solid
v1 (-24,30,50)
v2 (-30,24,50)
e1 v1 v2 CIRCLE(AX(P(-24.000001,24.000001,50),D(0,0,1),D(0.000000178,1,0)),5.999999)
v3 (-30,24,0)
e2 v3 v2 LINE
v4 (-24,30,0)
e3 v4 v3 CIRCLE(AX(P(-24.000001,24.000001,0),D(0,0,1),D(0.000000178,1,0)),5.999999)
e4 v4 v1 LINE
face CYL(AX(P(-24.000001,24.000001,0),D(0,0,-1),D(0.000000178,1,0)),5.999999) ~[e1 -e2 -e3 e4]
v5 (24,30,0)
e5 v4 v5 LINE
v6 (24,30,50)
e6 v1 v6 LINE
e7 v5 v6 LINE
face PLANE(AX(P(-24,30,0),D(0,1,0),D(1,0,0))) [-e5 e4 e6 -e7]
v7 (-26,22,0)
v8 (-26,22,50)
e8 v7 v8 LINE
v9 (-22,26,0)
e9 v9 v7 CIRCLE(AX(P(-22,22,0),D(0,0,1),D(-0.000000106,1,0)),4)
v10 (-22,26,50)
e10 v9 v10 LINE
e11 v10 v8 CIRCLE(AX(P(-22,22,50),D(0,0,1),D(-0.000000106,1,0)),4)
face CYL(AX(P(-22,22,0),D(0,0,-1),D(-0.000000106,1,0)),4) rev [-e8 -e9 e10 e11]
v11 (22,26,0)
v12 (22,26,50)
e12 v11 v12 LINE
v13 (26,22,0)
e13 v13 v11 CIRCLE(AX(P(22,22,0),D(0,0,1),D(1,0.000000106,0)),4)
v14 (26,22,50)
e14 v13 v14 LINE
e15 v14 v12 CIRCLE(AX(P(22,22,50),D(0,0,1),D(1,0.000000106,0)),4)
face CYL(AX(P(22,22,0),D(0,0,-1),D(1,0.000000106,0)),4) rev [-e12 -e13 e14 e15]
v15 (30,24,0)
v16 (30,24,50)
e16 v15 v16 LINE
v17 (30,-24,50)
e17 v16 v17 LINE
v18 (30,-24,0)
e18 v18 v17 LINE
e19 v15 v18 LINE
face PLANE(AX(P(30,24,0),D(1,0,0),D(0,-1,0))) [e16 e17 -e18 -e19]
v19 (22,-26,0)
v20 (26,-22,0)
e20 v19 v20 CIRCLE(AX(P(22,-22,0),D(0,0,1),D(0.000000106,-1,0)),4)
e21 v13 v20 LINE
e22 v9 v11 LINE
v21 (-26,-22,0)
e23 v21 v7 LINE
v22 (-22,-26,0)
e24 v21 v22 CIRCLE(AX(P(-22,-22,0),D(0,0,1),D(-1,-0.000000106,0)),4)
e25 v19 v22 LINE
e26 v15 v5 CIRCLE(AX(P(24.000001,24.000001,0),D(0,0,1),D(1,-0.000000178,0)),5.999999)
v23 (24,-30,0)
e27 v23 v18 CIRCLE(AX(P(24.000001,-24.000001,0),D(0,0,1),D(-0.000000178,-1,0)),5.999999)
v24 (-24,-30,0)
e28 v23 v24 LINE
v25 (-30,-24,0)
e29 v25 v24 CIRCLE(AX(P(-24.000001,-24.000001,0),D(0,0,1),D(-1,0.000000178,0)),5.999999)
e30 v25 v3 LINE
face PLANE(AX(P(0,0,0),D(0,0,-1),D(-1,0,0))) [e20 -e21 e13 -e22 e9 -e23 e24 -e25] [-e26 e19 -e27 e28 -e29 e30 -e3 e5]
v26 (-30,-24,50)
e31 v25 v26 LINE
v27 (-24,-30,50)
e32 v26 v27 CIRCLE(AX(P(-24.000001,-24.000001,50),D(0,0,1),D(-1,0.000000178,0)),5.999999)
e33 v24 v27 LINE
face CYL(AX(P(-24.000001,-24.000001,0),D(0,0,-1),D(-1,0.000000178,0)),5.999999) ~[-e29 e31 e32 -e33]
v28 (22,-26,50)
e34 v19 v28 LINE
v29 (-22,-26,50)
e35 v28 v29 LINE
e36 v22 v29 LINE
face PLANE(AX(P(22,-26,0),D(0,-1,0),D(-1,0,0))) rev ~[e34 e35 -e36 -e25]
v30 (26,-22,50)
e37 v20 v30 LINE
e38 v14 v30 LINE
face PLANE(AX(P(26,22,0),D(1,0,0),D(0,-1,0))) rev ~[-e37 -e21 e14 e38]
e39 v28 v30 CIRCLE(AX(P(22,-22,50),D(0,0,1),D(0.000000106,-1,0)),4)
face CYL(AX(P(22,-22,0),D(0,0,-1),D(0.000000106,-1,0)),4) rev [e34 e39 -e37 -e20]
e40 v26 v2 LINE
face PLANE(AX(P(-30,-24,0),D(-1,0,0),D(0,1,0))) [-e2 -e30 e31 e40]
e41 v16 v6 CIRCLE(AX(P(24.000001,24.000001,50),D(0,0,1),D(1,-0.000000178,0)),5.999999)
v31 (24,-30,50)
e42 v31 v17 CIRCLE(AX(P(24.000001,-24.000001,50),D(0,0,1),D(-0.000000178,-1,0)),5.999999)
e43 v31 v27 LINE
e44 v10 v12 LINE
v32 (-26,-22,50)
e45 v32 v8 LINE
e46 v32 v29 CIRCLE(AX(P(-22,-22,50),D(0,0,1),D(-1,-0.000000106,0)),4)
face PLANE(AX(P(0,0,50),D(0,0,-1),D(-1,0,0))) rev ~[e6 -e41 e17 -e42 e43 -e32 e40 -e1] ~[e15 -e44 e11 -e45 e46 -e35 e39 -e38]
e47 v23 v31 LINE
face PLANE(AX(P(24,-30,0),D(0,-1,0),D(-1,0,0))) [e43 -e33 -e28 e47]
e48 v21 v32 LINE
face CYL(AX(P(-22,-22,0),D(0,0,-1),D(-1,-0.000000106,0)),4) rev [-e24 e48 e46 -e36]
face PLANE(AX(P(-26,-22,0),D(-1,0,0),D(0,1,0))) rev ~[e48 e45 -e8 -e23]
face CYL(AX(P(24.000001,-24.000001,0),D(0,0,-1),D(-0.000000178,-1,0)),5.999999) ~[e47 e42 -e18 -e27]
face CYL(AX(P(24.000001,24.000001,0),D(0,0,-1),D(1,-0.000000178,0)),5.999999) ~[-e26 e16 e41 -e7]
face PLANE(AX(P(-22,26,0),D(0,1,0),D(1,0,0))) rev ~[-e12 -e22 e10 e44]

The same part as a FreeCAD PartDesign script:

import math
import FreeCAD as App
import Part
import Sketcher

V = App.Vector

doc = App.newDocument("Part")
body = doc.addObject("PartDesign::Body", "Body")

sketch1 = body.newObject("Sketcher::SketchObject", "Sketch")
sketch1.AttachmentSupport = (doc.getObject("XY_Plane"), [""])
sketch1.MapMode = "FlatFace"
sketch1.addGeometry([
    Part.LineSegment(V(24, 30, 0), V(-24, 30, 0)),
    Part.ArcOfCircle(Part.Circle(V(-24.000001, 24.000001, 0), V(0, 0, 1), 5.999999), math.radians(89.99999), math.radians(180.00001)),
    Part.LineSegment(V(-30, 24, 0), V(-30, -24, 0)),
    Part.ArcOfCircle(Part.Circle(V(-24.000001, -24.000001, 0), V(0, 0, 1), 5.999999), math.radians(179.99999), math.radians(270.00001)),
    Part.LineSegment(V(-24, -30, 0), V(24, -30, 0)),
    Part.ArcOfCircle(Part.Circle(V(24.000001, -24.000001, 0), V(0, 0, 1), 5.999999), math.radians(-90.00001), math.radians(0.00001)),
    Part.LineSegment(V(30, -24, 0), V(30, 24, 0)),
    Part.ArcOfCircle(Part.Circle(V(24.000001, 24.000001, 0), V(0, 0, 1), 5.999999), math.radians(-0.00001), math.radians(90.00001)),
    Part.LineSegment(V(-22, 26, 0), V(22, 26, 0)),
    Part.ArcOfCircle(Part.Circle(V(22, 22, 0), V(0, 0, 1), 4), math.radians(0.000006), math.radians(89.999994)),
    Part.LineSegment(V(26, 22, 0), V(26, -22, 0)),
    Part.ArcOfCircle(Part.Circle(V(22, -22, 0), V(0, 0, 1), 4), math.radians(-89.999994), math.radians(-0.000006)),
    Part.LineSegment(V(22, -26, 0), V(-22, -26, 0)),
    Part.ArcOfCircle(Part.Circle(V(-22, -22, 0), V(0, 0, 1), 4), math.radians(-179.999994), math.radians(-90.000006)),
    Part.LineSegment(V(-26, -22, 0), V(-26, 22, 0)),
    Part.ArcOfCircle(Part.Circle(V(-22, 22, 0), V(0, 0, 1), 4), math.radians(90.000006), math.radians(179.999994)),
], False)
sketch1.addConstraint([
    Sketcher.Constraint("Tangent", 0, 2, 1, 1),
    Sketcher.Constraint("Tangent", 1, 2, 2, 1),
    Sketcher.Constraint("Tangent", 2, 2, 3, 1),
    Sketcher.Constraint("Tangent", 3, 2, 4, 1),
    Sketcher.Constraint("Tangent", 4, 2, 5, 1),
    Sketcher.Constraint("Tangent", 5, 2, 6, 1),
    Sketcher.Constraint("Tangent", 6, 2, 7, 1),
    Sketcher.Constraint("Tangent", 7, 2, 0, 1),
    Sketcher.Constraint("Tangent", 8, 2, 9, 2),
    Sketcher.Constraint("Tangent", 9, 1, 10, 1),
    Sketcher.Constraint("Tangent", 10, 2, 11, 2),
    Sketcher.Constraint("Tangent", 11, 1, 12, 1),
    Sketcher.Constraint("Tangent", 12, 2, 13, 2),
    Sketcher.Constraint("Tangent", 13, 1, 14, 1),
    Sketcher.Constraint("Tangent", 14, 2, 15, 2),
    Sketcher.Constraint("Tangent", 15, 1, 8, 1),
    Sketcher.Constraint("Horizontal", 0),
    Sketcher.Constraint("Vertical", 2),
    Sketcher.Constraint("Horizontal", 4),
    Sketcher.Constraint("Vertical", 6),
    Sketcher.Constraint("Horizontal", 8),
    Sketcher.Constraint("Vertical", 10),
    Sketcher.Constraint("Horizontal", 12),
    Sketcher.Constraint("Vertical", 14),
    Sketcher.Constraint("Equal", 1, 3),
    Sketcher.Constraint("Equal", 3, 5),
    Sketcher.Constraint("Equal", 5, 7),
    Sketcher.Constraint("Equal", 9, 11),
    Sketcher.Constraint("Equal", 11, 13),
    Sketcher.Constraint("Equal", 13, 15),
    Sketcher.Constraint("Symmetric", 1, 3, 5, 3, -1, 1),
    Sketcher.Constraint("Symmetric", 9, 3, 13, 3, -1, 1),
    Sketcher.Constraint("Equal", 4, 2),
    Sketcher.Constraint("Equal", 12, 10),
    Sketcher.Constraint("Radius", 1, 5.999999),
    Sketcher.Constraint("Radius", 9, 4.0),
    Sketcher.Constraint("DistanceX", 0, 2, 0, 1, 48.0),
    Sketcher.Constraint("DistanceX", 8, 1, 8, 2, 44.0),
])
pad1 = body.newObject("PartDesign::Pad", "Pad")
pad1.Profile = sketch1
pad1.Length = 50

doc.recompute()
